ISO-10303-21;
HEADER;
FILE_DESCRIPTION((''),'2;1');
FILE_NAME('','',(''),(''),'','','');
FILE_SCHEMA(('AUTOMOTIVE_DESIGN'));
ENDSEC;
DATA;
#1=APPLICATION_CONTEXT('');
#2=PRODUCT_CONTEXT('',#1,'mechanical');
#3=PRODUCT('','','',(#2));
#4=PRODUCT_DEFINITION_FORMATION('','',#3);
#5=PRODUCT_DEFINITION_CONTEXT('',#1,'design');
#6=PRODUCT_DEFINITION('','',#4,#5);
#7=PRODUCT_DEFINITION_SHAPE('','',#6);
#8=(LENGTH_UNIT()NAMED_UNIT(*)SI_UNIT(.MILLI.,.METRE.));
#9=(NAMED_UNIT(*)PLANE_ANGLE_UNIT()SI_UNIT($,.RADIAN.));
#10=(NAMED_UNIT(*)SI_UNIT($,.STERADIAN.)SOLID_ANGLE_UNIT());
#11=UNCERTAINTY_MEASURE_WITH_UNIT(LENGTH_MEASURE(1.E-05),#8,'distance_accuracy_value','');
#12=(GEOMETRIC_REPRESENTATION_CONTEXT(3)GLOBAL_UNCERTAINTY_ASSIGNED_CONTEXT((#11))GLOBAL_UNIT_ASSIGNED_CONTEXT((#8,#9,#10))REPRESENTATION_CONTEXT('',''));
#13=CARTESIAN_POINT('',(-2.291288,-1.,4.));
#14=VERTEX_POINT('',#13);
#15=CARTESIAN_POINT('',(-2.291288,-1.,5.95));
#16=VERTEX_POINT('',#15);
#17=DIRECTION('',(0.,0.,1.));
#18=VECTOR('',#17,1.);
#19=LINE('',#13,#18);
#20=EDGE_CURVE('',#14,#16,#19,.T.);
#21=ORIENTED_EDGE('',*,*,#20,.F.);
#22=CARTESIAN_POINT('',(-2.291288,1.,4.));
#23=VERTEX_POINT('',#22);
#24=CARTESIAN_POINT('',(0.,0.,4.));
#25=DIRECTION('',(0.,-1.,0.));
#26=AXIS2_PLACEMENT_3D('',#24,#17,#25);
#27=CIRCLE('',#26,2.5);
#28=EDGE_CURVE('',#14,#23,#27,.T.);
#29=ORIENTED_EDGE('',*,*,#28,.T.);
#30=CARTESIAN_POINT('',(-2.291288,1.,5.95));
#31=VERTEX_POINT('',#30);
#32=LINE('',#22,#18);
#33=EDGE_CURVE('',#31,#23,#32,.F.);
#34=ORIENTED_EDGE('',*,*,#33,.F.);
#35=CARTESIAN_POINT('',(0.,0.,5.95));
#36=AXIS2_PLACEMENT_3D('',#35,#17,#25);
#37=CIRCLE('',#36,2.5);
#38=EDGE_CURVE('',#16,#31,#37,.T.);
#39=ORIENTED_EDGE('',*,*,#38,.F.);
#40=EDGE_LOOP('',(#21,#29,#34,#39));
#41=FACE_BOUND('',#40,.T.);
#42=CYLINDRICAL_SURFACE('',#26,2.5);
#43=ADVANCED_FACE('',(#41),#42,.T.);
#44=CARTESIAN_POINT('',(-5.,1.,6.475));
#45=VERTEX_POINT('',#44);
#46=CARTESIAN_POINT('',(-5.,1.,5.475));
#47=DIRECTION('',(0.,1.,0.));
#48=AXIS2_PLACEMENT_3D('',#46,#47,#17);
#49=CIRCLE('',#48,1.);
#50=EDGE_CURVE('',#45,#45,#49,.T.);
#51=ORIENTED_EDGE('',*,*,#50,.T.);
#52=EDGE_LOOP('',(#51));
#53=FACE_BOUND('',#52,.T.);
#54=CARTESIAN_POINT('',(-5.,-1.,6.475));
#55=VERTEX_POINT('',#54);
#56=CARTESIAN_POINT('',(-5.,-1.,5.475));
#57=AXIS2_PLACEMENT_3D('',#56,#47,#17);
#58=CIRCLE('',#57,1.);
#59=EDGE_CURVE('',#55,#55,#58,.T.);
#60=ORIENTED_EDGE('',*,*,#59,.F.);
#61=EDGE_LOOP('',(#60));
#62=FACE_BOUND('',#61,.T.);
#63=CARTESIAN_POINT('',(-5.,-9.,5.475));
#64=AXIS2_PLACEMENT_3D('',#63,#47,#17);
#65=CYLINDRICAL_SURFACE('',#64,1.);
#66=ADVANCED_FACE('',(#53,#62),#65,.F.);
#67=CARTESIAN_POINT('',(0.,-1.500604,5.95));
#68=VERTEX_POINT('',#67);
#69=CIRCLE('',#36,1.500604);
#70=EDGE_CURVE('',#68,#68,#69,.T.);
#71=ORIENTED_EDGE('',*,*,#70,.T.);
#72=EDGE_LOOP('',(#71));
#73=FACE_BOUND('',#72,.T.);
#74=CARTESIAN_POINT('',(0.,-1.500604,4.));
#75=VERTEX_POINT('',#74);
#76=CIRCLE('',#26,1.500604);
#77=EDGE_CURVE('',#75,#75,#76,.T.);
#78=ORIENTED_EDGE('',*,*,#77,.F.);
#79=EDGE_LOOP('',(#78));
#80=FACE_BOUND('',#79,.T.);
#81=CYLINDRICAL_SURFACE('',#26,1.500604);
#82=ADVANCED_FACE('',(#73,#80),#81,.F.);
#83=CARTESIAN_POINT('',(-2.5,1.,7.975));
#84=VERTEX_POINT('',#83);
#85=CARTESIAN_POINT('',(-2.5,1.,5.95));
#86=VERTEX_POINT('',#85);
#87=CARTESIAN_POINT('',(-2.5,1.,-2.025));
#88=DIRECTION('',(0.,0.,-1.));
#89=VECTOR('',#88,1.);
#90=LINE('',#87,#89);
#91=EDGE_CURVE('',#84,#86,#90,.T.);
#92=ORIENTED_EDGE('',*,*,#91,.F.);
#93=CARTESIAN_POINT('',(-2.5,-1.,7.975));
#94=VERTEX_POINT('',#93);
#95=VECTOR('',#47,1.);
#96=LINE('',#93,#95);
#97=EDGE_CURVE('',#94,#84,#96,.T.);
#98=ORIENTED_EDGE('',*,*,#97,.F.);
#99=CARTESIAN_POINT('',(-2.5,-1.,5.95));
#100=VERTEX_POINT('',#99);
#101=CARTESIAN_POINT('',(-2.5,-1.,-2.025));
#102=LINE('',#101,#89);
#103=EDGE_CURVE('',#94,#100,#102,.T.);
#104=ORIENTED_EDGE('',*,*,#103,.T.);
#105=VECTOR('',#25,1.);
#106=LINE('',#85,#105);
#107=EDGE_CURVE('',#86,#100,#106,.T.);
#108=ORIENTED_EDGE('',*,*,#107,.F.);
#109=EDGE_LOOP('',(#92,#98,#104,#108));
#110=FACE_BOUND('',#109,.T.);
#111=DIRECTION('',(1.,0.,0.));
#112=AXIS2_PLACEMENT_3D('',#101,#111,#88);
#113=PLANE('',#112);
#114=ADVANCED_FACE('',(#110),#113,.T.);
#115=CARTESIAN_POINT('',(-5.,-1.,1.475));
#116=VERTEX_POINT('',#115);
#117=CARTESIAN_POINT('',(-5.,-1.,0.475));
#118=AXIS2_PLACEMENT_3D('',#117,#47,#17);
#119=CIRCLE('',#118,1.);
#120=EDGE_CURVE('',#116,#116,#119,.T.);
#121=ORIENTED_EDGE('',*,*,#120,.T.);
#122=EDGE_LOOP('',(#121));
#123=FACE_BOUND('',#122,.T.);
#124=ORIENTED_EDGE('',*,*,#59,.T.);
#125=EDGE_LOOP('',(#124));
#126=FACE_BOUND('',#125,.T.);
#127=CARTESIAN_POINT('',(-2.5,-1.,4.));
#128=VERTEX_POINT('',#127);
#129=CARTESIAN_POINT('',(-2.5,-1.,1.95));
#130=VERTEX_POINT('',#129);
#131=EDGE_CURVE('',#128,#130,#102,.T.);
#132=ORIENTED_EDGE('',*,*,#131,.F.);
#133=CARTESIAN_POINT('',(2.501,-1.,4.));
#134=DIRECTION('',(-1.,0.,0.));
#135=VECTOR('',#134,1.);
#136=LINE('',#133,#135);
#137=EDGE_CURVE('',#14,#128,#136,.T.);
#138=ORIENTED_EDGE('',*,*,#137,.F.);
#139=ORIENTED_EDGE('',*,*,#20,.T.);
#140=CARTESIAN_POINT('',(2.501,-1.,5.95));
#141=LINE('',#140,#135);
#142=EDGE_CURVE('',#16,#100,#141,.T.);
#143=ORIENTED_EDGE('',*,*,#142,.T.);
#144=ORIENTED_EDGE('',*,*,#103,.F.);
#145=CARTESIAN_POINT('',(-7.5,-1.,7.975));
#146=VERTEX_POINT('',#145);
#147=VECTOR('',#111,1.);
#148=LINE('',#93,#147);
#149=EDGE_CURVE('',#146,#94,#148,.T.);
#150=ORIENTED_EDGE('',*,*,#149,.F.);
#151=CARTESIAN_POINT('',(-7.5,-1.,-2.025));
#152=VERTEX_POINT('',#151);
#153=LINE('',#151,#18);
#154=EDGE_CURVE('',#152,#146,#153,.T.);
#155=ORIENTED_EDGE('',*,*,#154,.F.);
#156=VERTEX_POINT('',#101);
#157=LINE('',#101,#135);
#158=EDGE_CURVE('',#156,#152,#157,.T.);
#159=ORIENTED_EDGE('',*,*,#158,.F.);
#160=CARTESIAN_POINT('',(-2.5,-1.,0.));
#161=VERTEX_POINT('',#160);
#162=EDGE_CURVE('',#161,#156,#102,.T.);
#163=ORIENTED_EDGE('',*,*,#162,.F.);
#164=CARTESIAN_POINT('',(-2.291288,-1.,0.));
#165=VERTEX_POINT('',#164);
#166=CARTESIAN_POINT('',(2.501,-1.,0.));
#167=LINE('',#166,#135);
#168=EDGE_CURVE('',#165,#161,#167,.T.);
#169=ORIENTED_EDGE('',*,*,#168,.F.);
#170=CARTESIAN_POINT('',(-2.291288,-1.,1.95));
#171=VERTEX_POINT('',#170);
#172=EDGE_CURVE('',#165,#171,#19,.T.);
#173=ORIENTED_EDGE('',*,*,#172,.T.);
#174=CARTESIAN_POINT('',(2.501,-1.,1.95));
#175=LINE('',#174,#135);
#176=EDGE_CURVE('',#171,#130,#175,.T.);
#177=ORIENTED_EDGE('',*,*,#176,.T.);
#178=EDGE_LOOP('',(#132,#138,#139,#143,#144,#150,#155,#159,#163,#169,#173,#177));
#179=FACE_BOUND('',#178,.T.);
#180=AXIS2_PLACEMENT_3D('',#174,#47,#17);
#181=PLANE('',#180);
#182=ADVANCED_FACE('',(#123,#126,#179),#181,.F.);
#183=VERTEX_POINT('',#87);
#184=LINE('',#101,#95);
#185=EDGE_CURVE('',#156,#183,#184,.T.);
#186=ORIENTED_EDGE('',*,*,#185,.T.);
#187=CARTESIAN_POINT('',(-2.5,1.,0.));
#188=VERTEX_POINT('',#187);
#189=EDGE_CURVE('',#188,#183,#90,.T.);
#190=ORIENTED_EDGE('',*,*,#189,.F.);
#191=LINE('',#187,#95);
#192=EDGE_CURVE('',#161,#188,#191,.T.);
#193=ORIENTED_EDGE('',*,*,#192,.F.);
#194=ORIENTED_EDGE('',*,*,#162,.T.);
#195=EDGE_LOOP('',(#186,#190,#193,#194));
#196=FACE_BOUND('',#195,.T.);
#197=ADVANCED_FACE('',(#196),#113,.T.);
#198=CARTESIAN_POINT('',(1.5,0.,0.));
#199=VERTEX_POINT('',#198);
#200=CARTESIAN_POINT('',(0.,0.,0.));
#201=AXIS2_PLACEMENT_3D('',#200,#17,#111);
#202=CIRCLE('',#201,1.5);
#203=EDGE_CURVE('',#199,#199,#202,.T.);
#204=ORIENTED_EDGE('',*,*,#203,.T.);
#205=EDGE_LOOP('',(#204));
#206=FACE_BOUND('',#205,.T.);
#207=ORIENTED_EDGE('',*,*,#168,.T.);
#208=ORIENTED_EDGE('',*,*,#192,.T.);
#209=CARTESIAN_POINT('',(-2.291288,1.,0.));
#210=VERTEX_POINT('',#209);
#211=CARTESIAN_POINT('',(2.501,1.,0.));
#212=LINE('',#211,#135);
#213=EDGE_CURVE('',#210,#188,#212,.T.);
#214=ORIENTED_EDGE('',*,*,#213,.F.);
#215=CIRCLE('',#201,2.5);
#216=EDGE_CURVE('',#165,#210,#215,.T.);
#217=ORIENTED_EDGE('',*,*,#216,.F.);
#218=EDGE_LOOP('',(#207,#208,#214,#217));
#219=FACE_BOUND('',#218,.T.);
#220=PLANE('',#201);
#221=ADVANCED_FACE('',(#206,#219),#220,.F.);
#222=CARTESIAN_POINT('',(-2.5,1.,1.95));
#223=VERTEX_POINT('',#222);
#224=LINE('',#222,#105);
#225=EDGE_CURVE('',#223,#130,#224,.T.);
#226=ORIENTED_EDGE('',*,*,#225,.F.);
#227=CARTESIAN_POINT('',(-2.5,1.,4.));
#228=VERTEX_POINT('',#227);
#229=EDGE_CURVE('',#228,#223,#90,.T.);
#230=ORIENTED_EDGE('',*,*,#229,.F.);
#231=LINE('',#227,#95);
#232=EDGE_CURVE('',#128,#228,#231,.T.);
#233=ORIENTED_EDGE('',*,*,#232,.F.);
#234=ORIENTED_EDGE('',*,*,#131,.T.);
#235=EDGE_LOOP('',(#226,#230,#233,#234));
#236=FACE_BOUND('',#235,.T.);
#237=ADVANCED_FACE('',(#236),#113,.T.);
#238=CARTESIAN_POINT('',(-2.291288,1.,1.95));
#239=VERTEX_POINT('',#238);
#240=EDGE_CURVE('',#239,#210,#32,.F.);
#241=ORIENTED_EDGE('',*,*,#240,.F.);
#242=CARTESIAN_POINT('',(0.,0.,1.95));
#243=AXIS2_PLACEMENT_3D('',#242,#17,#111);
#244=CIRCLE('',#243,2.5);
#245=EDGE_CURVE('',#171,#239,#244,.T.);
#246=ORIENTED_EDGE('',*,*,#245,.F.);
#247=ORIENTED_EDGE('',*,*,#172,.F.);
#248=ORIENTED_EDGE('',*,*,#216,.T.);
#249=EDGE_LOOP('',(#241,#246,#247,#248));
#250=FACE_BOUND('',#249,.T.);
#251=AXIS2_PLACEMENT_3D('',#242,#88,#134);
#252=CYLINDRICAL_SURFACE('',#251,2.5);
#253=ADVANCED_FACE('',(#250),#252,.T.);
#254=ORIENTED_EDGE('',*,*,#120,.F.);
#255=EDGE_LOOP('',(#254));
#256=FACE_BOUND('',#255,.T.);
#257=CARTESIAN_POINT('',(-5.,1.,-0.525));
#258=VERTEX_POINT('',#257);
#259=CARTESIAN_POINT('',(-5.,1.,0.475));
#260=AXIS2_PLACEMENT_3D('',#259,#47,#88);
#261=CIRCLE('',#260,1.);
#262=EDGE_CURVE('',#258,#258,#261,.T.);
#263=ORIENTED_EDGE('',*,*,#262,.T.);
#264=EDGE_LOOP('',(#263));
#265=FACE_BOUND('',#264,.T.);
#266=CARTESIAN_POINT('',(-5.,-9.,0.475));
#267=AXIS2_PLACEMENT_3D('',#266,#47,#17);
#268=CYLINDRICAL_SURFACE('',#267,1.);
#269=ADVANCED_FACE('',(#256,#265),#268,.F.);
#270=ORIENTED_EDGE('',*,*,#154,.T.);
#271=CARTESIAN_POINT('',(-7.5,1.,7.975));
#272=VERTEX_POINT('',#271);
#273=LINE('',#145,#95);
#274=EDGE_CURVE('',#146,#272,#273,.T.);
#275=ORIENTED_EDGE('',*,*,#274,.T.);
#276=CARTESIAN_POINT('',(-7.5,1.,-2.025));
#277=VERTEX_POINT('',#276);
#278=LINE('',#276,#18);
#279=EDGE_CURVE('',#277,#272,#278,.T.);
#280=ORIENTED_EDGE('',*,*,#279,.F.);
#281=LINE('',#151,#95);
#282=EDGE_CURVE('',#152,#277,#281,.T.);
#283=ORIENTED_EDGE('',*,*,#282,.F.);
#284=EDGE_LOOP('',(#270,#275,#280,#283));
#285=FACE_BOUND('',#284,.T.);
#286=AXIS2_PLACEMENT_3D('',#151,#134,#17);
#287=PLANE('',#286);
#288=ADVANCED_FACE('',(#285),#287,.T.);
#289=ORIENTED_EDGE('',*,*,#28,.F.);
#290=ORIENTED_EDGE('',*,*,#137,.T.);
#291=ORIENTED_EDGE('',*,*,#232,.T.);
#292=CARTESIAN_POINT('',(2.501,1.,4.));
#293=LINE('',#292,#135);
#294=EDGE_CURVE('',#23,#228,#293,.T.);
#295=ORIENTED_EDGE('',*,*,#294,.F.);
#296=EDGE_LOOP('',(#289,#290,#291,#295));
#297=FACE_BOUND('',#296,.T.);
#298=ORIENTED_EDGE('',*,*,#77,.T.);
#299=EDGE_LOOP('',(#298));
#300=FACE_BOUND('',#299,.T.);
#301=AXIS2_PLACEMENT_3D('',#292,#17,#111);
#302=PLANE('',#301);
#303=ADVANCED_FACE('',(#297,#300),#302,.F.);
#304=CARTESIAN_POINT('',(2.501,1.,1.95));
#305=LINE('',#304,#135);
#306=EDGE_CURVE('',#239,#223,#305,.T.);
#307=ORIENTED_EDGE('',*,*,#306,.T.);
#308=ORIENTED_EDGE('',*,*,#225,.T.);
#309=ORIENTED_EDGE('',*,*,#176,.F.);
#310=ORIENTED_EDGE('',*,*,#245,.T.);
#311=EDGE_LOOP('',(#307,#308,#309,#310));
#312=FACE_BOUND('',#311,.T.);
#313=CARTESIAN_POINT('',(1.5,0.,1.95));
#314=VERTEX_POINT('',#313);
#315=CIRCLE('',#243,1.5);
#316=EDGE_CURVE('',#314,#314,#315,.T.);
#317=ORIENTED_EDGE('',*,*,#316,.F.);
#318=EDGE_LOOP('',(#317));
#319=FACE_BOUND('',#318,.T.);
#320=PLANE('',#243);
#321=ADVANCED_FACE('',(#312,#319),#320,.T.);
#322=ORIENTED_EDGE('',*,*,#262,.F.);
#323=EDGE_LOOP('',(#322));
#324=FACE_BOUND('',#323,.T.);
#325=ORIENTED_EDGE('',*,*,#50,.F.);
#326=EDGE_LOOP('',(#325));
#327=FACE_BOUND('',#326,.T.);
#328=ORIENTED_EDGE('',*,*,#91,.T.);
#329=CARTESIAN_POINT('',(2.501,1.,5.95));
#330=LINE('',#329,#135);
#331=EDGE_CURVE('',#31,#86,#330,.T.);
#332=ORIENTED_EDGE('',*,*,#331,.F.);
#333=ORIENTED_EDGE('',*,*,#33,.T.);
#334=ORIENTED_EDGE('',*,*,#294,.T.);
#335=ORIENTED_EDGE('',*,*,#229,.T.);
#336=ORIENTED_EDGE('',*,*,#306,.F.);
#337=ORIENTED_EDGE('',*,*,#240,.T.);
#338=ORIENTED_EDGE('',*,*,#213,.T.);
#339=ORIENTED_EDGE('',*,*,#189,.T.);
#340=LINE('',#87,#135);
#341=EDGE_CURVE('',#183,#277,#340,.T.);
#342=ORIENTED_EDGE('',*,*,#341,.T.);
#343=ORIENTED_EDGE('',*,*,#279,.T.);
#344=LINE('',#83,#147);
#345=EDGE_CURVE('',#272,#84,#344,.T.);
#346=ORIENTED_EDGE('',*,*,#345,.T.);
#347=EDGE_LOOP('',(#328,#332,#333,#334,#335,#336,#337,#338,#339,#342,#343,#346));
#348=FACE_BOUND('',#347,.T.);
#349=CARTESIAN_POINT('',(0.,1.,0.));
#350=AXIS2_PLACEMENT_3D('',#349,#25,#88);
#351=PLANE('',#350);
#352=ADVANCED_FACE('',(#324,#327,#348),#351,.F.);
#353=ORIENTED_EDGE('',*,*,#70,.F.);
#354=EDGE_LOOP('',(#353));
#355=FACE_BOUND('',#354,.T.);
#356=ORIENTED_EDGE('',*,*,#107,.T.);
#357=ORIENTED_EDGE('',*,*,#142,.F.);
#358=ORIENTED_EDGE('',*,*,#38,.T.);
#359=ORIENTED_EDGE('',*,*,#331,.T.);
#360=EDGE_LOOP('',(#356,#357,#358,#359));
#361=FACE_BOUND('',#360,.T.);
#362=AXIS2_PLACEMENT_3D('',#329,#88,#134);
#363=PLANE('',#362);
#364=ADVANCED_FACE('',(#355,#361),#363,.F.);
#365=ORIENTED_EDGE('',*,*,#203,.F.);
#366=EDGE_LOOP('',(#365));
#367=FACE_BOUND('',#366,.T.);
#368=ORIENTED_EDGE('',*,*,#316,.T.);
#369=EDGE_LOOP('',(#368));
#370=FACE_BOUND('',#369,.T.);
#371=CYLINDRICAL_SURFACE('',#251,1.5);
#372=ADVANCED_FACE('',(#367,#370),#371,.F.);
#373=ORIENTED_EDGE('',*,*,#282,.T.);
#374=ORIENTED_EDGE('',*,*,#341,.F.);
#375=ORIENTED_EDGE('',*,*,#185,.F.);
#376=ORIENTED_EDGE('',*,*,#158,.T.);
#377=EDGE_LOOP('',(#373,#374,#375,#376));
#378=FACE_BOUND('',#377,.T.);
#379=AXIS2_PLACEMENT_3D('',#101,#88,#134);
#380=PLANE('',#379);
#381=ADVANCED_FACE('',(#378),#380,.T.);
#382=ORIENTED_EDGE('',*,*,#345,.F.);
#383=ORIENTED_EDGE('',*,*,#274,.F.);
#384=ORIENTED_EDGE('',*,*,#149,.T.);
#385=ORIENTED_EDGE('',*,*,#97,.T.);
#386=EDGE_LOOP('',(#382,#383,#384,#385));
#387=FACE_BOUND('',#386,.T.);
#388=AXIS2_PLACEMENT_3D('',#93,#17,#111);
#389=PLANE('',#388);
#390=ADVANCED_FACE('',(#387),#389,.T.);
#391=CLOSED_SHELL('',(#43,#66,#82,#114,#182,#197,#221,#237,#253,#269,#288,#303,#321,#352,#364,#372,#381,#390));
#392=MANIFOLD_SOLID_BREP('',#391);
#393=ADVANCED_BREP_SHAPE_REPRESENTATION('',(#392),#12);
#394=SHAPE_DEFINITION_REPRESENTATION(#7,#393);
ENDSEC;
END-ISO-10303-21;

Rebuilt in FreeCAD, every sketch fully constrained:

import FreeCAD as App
import Part
import Sketcher

doc = App.newDocument("Part")
body = doc.addObject("PartDesign::Body", "Body")

# Sketch on XY plane
sketch1 = body.newObject("Sketcher::SketchObject", "Sketch")
sketch1.AttachmentSupport = (doc.getObject("XY_Plane"), [""])
sketch1.MapMode = "FlatFace"
sketch1.addGeometry(Part.Circle(App.Vector(0, 0, 0), App.Vector(0, 0, 1), 2.5), False)
sketch1.addGeometry(Part.Circle(App.Vector(0, 0, 0), App.Vector(0, 0, 1), 1.5), False)
sketch1.addConstraint(Sketcher.Constraint("Coincident", 0, 3, -1, 1))
sketch1.addConstraint(Sketcher.Constraint("Coincident", 1, 3, -1, 1))
sketch1.addConstraint(Sketcher.Constraint("Diameter", 0, 5.0))
sketch1.addConstraint(Sketcher.Constraint("Diameter", 1, 3.0))
pad1 = body.newObject("PartDesign::Pad", "Pad")
pad1.Profile = sketch1
pad1.Length = 1.95
body2 = doc.addObject("PartDesign::Body", "Body001")

# Sketch on XZ plane
sketch2 = body2.newObject("Sketcher::SketchObject", "Sketch001")
sketch2.AttachmentSupport = (doc.getObject("XZ_Plane001"), [""])
sketch2.MapMode = "FlatFace"
sketch2.addGeometry(Part.LineSegment(App.Vector(-8, -2, 0), App.Vector(-8, 8, 0)), False)
sketch2.addGeometry(Part.LineSegment(App.Vector(-8, 8, 0), App.Vector(-2, 8, 0)), False)
sketch2.addGeometry(Part.LineSegment(App.Vector(-2, 8, 0), App.Vector(-2, -2, 0)), False)
sketch2.addGeometry(Part.LineSegment(App.Vector(-2, -2, 0), App.Vector(-8, -2, 0)), False)
sketch2.addConstraint(Sketcher.Constraint("Coincident", 0, 2, 1, 1))
sketch2.addConstraint(Sketcher.Constraint("Coincident", 1, 2, 2, 1))
sketch2.addConstraint(Sketcher.Constraint("Coincident", 2, 2, 3, 1))
sketch2.addConstraint(Sketcher.Constraint("Coincident", 3, 2, 0, 1))
sketch2.addConstraint(Sketcher.Constraint("Vertical", 0))
sketch2.addConstraint(Sketcher.Constraint("Horizontal", 1))
sketch2.addConstraint(Sketcher.Constraint("Vertical", 2))
sketch2.addConstraint(Sketcher.Constraint("Horizontal", 3))
sketch2.addConstraint(Sketcher.Constraint("DistanceX", 1, 1, 1, 2, 5.0))
sketch2.addConstraint(Sketcher.Constraint("DistanceY", 0, 1, 0, 2, 10.0))
sketch2.addConstraint(Sketcher.Constraint("DistanceX", 0, 2, -1, 1, 7.5))
sketch2.addConstraint(Sketcher.Constraint("DistanceY", -1, 1, 0, 2, 7.975))
pad2 = body2.newObject("PartDesign::Pad", "Pad001")
pad2.Profile = sketch2
pad2.Type = "TwoLengths"
pad2.Length = 1
pad2.Length2 = 1
pad2.Reversed = True
body3 = doc.addObject("PartDesign::Body", "Body002")

# Sketch on XY plane
sketch3 = body3.newObject("Sketcher::SketchObject", "Sketch002")
sketch3.AttachmentSupport = (doc.getObject("XY_Plane002"), [""])
sketch3.MapMode = "FlatFace"
sketch3.AttachmentOffset = App.Placement(App.Vector(0, 0, 4.975), App.Rotation())
sketch3.addGeometry(Part.Circle(App.Vector(0, 0, 0), App.Vector(0, 0, 1), 2.5), False)
sketch3.addGeometry(Part.Circle(App.Vector(0, 0, 0), App.Vector(0, 0, 1), 1.5), False)
sketch3.addConstraint(Sketcher.Constraint("Coincident", 0, 3, -1, 1))
sketch3.addConstraint(Sketcher.Constraint("Coincident", 1, 3, -1, 1))
sketch3.addConstraint(Sketcher.Constraint("Diameter", 0, 5.0))
sketch3.addConstraint(Sketcher.Constraint("Diameter", 1, 3.001208))
pad3 = body3.newObject("PartDesign::Pad", "Pad002")
pad3.Profile = sketch3
pad3.Type = "TwoLengths"
pad3.Length = 0.975
pad3.Length2 = 0.975
body.AllowCompound = True
doc.recompute()

boolean = body.newObject("PartDesign::Boolean", "Boolean")
boolean.Type = "Fuse"
boolean.addObjects([body2])
doc.recompute()

boolean2 = body.newObject("PartDesign::Boolean", "Boolean001")
boolean2.Type = "Fuse"
boolean2.addObjects([body3])

# Sketch on YZ plane
sketch4 = body.newObject("Sketcher::SketchObject", "Sketch003")
sketch4.AttachmentSupport = (doc.getObject("YZ_Plane"), [""])
sketch4.MapMode = "FlatFace"
sketch4.AttachmentOffset = App.Placement(App.Vector(0, 0, -2.5), App.Rotation())
sketch4.addGeometry(Part.LineSegment(App.Vector(1, 6, 0), App.Vector(-1, 6, 0)), False)
sketch4.addGeometry(Part.LineSegment(App.Vector(-1, 6, 0), App.Vector(-1, 4, 0)), False)
sketch4.addGeometry(Part.LineSegment(App.Vector(-1, 4, 0), App.Vector(1, 4, 0)), False)
sketch4.addGeometry(Part.LineSegment(App.Vector(1, 4, 0), App.Vector(1, 6, 0)), False)
sketch4.addGeometry(Part.LineSegment(App.Vector(1, 1.9, 0), App.Vector(-1, 1.9, 0)), False)
sketch4.addGeometry(Part.LineSegment(App.Vector(-1, 1.9, 0), App.Vector(-1, 0, 0)), False)
sketch4.addGeometry(Part.LineSegment(App.Vector(-1, 0, 0), App.Vector(1, 0, 0)), False)
sketch4.addGeometry(Part.LineSegment(App.Vector(1, 0, 0), App.Vector(1, 1.9, 0)), False)
sketch4.addConstraint(Sketcher.Constraint("Coincident", 0, 2, 1, 1))
sketch4.addConstraint(Sketcher.Constraint("Coincident", 1, 2, 2, 1))
sketch4.addConstraint(Sketcher.Constraint("Coincident", 2, 2, 3, 1))
sketch4.addConstraint(Sketcher.Constraint("Coincident", 3, 2, 0, 1))
sketch4.addConstraint(Sketcher.Constraint("Coincident", 4, 2, 5, 1))
sketch4.addConstraint(Sketcher.Constraint("Coincident", 5, 2, 6, 1))
sketch4.addConstraint(Sketcher.Constraint("Coincident", 6, 2, 7, 1))
sketch4.addConstraint(Sketcher.Constraint("Coincident", 7, 2, 4, 1))
sketch4.addConstraint(Sketcher.Constraint("Horizontal", 0))
sketch4.addConstraint(Sketcher.Constraint("Vertical", 1))
sketch4.addConstraint(Sketcher.Constraint("Horizontal", 2))
sketch4.addConstraint(Sketcher.Constraint("Vertical", 3))
sketch4.addConstraint(Sketcher.Constraint("Horizontal", 4))
sketch4.addConstraint(Sketcher.Constraint("Vertical", 5))
sketch4.addConstraint(Sketcher.Constraint("Horizontal", 6))
sketch4.addConstraint(Sketcher.Constraint("Vertical", 7))
sketch4.addConstraint(Sketcher.Constraint("Symmetric", 5, 2, 6, 2, -1, 1))
sketch4.addConstraint(Sketcher.Constraint("Vertical", 1, 2, 4, 2))
sketch4.addConstraint(Sketcher.Constraint("Vertical", 3, 2, 6, 2))
sketch4.addConstraint(Sketcher.Constraint("Equal", 3, 5))
sketch4.addConstraint(Sketcher.Constraint("DistanceX", 0, 2, 0, 1, 2.0))
sketch4.addConstraint(Sketcher.Constraint("DistanceY", -1, 1, 1, 2, 4.0))
sketch4.addConstraint(Sketcher.Constraint("DistanceY", 1, 2, 1, 1, 1.95))
pad4 = body.newObject("PartDesign::Pad", "Pad003")
pad4.Profile = sketch4
pad4.Length = 0.208712

# Sketch on XZ plane
sketch5 = body.newObject("Sketcher::SketchObject", "Sketch004")
sketch5.AttachmentSupport = (doc.getObject("XZ_Plane"), [""])
sketch5.MapMode = "FlatFace"
sketch5.AttachmentOffset = App.Placement(App.Vector(0, 0, -1), App.Rotation())
sketch5.addGeometry(Part.Circle(App.Vector(-5, 5.5, 0), App.Vector(0, 0, 1), 1), False)
sketch5.addGeometry(Part.Circle(App.Vector(-5, 0.5, 0), App.Vector(0, 0, 1), 1), False)
sketch5.addConstraint(Sketcher.Constraint("Equal", 0, 1))
sketch5.addConstraint(Sketcher.Constraint("Vertical", 0, 3, 1, 3))
sketch5.addConstraint(Sketcher.Constraint("Diameter", 0, 2.0))
sketch5.addConstraint(Sketcher.Constraint("DistanceX", 0, 3, -1, 1, 5.0))
sketch5.addConstraint(Sketcher.Constraint("DistanceY", 1, 3, 0, 3, 5.0))
sketch5.addConstraint(Sketcher.Constraint("DistanceY", -1, 1, 0, 3, 5.475))
pocket1 = body.newObject("PartDesign::Pocket", "Pocket")
pocket1.Profile = sketch5
pocket1.Length = 10
pocket1.Reversed = True

doc.recompute()
